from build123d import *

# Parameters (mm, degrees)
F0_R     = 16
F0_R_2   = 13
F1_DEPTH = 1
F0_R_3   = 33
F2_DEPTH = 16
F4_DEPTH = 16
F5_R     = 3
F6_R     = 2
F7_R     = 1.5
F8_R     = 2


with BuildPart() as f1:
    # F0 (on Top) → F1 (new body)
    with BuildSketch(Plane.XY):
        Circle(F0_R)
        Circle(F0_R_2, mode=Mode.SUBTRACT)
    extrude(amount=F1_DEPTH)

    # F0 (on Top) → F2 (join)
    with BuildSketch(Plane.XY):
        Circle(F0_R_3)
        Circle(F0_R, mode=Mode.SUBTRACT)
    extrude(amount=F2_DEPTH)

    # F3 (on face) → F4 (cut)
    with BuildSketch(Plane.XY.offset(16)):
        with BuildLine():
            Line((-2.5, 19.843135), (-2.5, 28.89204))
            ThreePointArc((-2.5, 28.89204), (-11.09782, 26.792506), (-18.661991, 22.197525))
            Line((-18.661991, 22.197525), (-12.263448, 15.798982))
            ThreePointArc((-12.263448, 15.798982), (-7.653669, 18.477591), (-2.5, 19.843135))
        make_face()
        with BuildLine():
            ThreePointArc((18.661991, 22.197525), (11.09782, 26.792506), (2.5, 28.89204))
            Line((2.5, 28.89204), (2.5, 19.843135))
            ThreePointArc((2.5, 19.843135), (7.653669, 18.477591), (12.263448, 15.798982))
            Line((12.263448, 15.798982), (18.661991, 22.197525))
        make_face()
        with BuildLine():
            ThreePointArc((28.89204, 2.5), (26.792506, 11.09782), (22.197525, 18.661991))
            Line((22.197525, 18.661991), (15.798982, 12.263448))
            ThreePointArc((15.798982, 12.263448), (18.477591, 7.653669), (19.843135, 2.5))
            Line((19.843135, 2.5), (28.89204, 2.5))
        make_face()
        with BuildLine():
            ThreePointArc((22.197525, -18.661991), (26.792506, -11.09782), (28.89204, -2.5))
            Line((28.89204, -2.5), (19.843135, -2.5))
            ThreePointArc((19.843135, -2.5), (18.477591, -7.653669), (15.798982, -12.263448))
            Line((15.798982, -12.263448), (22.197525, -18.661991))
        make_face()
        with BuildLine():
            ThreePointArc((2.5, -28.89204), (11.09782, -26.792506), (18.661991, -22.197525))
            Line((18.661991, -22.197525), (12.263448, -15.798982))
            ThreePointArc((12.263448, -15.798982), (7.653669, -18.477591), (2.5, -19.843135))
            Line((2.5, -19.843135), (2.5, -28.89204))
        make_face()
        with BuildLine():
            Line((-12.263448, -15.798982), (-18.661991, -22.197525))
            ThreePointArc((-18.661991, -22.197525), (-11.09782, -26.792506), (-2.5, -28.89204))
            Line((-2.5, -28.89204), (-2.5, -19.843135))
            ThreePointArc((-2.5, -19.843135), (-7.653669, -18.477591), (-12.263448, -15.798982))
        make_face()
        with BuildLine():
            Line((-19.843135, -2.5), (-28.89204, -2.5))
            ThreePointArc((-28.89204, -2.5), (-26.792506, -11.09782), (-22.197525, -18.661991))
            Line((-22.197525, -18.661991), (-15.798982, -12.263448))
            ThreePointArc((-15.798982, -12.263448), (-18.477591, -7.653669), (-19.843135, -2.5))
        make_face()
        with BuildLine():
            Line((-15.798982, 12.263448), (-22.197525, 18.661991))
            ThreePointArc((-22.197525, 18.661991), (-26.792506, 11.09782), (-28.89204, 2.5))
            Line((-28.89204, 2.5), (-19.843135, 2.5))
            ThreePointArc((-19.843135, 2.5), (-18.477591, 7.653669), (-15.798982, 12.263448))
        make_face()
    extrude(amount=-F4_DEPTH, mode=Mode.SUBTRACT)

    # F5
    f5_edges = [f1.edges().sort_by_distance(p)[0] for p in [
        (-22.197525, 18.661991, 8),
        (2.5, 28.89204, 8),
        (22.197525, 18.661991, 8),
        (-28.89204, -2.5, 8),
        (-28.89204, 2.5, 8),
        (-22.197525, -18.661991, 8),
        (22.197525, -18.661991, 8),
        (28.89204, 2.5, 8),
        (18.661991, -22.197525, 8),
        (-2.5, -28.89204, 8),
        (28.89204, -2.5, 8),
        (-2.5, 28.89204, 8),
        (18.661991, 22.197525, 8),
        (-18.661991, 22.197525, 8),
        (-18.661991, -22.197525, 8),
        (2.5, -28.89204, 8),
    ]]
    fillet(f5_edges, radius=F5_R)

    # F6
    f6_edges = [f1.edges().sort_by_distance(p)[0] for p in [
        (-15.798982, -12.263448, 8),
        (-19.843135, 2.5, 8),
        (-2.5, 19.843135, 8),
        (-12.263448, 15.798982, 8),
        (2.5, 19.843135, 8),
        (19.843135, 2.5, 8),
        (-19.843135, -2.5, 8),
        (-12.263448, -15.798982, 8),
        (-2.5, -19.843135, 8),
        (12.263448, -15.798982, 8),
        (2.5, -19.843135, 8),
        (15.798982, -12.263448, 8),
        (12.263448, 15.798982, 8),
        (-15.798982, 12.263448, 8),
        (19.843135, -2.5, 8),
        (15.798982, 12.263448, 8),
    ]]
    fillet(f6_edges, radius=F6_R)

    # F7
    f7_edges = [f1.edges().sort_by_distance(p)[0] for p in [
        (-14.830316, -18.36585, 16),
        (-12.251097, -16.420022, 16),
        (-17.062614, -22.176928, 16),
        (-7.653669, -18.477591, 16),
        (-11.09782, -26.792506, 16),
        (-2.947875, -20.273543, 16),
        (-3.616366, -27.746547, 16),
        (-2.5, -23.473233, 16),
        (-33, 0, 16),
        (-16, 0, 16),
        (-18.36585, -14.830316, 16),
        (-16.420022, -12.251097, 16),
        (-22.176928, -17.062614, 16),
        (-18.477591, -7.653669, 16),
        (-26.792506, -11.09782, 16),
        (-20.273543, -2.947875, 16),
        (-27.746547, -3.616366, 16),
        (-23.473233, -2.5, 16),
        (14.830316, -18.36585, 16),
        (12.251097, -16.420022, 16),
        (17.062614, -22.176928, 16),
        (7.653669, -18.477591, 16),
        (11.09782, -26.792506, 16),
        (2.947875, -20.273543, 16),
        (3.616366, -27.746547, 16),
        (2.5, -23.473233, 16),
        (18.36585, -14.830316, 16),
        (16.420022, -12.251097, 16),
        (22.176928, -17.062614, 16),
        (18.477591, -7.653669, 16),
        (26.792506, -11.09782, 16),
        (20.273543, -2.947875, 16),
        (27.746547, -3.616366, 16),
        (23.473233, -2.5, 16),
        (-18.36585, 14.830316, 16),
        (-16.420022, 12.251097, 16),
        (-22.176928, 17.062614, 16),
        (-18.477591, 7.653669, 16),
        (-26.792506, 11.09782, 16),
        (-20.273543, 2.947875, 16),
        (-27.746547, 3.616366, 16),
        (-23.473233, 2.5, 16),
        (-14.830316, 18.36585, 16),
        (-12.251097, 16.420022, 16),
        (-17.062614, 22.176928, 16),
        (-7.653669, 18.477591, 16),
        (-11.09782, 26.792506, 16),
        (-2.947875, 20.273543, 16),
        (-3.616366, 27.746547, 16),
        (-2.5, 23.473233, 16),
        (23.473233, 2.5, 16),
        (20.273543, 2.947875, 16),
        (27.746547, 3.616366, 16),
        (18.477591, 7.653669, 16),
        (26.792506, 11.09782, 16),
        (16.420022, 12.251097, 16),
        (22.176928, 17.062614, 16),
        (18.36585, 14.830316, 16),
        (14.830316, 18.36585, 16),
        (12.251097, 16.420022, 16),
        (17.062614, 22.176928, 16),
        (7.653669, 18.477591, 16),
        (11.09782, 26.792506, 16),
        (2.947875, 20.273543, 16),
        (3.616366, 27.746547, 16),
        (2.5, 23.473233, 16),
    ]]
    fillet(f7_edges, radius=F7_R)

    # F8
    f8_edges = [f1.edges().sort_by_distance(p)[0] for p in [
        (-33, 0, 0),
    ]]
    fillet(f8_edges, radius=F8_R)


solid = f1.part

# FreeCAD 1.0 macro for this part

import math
import FreeCAD as App
import Part
import Sketcher
Q = App.Units.Quantity


def edges_at(feature, points):
    """Names of the edges that pass closest to the given points."""
    edges = feature.Shape.Edges
    near = lambda p: min(range(len(edges)), key=lambda i: edges[i].distToShape(Part.Vertex(*p))[0])
    return sorted({f"Edge{near(p) + 1}" for p in points})

doc = App.newDocument("Part")
params = doc.addObject("Spreadsheet::Sheet", "Params")
for row, (alias, value) in enumerate([
    ("sketch1_diameter", "32 mm"),
    ("sketch1_diameter2", "26 mm"),
    ("pad1_length", "1 mm"),
    ("sketch2_diameter", "66 mm"),
    ("sketch2_diameter2", "32 mm"),
    ("pad2_length", "16 mm"),
    ("pocket1_length", "16 mm"),
    ("fillet_radius", "3 mm"),
    ("fillet2_radius", "2 mm"),
    ("fillet3_radius", "1.5 mm"),
    ("fillet4_radius", "2 mm"),
], start=1):
    params.set(f"A{row}", alias)
    params.set(f"B{row}", "=" + value)
    params.setAlias(f"B{row}", alias)

body = doc.addObject("PartDesign::Body", "Body")

sketch1 = body.newObject("Sketcher::SketchObject", "Sketch")
sketch1.AttachmentSupport = (doc.getObject("XY_Plane"), [""])
sketch1.MapMode = "FlatFace"
sketch1.addGeometry([
    Part.Circle(App.Vector(0, 0, 0), App.Vector(0, 0, 1), 16),
    Part.Circle(App.Vector(0, 0, 0), App.Vector(0, 0, 1), 13),
], False)
sketch1.addConstraint([
    Sketcher.Constraint("Coincident", 0, 3, -1, 1),
    Sketcher.Constraint("Coincident", 1, 3, -1, 1),
    Sketcher.Constraint("Diameter", 0, Q("32 mm")),
    Sketcher.Constraint("Diameter", 1, Q("26 mm")),
])
sketch1.setExpression("Constraints[2]", "Params.sketch1_diameter")
sketch1.setExpression("Constraints[3]", "Params.sketch1_diameter2")
pad1 = body.newObject("PartDesign::Pad", "Pad")
pad1.Profile = sketch1
pad1.setExpression("Length", "Params.pad1_length")

sketch2 = body.newObject("Sketcher::SketchObject", "Sketch001")
sketch2.AttachmentSupport = (doc.getObject("XY_Plane"), [""])
sketch2.MapMode = "FlatFace"
sketch2.addGeometry([
    Part.Circle(App.Vector(0, 0, 0), App.Vector(0, 0, 1), 33),
    Part.Circle(App.Vector(0, 0, 0), App.Vector(0, 0, 1), 16),
], False)
sketch2.addConstraint([
    Sketcher.Constraint("Coincident", 0, 3, -1, 1),
    Sketcher.Constraint("Coincident", 1, 3, -1, 1),
    Sketcher.Constraint("Diameter", 0, Q("66 mm")),
    Sketcher.Constraint("Diameter", 1, Q("32 mm")),
])
sketch2.setExpression("Constraints[2]", "Params.sketch2_diameter")
sketch2.setExpression("Constraints[3]", "Params.sketch2_diameter2")
pad2 = body.newObject("PartDesign::Pad", "Pad001")
pad2.Profile = sketch2
pad2.setExpression("Length", "Params.pad2_length")

sketch3 = body.newObject("Sketcher::SketchObject", "Sketch002")
sketch3.AttachmentSupport = (doc.getObject("XY_Plane"), [""])
sketch3.MapMode = "FlatFace"
sketch3.AttachmentOffset = App.Placement(App.Vector(0, 0, 16), App.Rotation())
sketch3.addGeometry([
    Part.LineSegment(App.Vector(-2.5, 19.843135, 0), App.Vector(-2.5, 28.89204, 0)),
    Part.ArcOfCircle(Part.Circle(App.Vector(0.000001, -0.000005, 0), App.Vector(0, 0, 1), 29.000005), math.radians(94.94543), math.radians(130.054565)),
    Part.LineSegment(App.Vector(-18.661991, 22.197525, 0), App.Vector(-12.263448, 15.798982, 0)),
    Part.ArcOfCircle(Part.Circle(App.Vector(-0.000005, 0.000014, 0), App.Vector(0, 0, 1), 19.999986), math.radians(97.180747), math.radians(127.819257)),
    Part.ArcOfCircle(Part.Circle(App.Vector(-0.000001, -0.000005, 0), App.Vector(0, 0, 1), 29.000005), math.radians(49.945435), math.radians(85.05457)),
    Part.LineSegment(App.Vector(2.5, 28.89204, 0), App.Vector(2.5, 19.843135, 0)),
    Part.ArcOfCircle(Part.Circle(App.Vector(0.000005, 0.000014, 0), App.Vector(0, 0, 1), 19.999986), math.radians(52.180743), math.radians(82.819253)),
    Part.LineSegment(App.Vector(12.263448, 15.798982, 0), App.Vector(18.661991, 22.197525, 0)),
    Part.ArcOfCircle(Part.Circle(App.Vector(-0.000005, -0.000001, 0), App.Vector(0, 0, 1), 29.000005), math.radians(4.94543), math.radians(40.054565)),
    Part.LineSegment(App.Vector(22.197525, 18.661991, 0), App.Vector(15.798982, 12.263448, 0)),
    Part.ArcOfCircle(Part.Circle(App.Vector(0.000014, 0.000005, 0), App.Vector(0, 0, 1), 19.999986), math.radians(7.180747), math.radians(37.819257)),
    Part.LineSegment(App.Vector(19.843135, 2.5, 0), App.Vector(28.89204, 2.5, 0)),
    Part.ArcOfCircle(Part.Circle(App.Vector(-0.000005, 0.000001, 0), App.Vector(0, 0, 1), 29.000005), math.radians(-40.054565), math.radians(-4.94543)),
    Part.LineSegment(App.Vector(28.89204, -2.5, 0), App.Vector(19.843135, -2.5, 0)),
    Part.ArcOfCircle(Part.Circle(App.Vector(0.000014, -0.000005, 0), App.Vector(0, 0, 1), 19.999986), math.radians(-37.819257), math.radians(-7.180747)),
    Part.LineSegment(App.Vector(15.798982, -12.263448, 0), App.Vector(22.197525, -18.661991, 0)),
    Part.ArcOfCircle(Part.Circle(App.Vector(-0.000001, 0.000005, 0), App.Vector(0, 0, 1), 29.000005), math.radians(-85.05457), math.radians(-49.945435)),
    Part.LineSegment(App.Vector(18.661991, -22.197525, 0), App.Vector(12.263448, -15.798982, 0)),
    Part.ArcOfCircle(Part.Circle(App.Vector(0.000005, -0.000014, 0), App.Vector(0, 0, 1), 19.999986), math.radians(-82.819253), math.radians(-52.180743)),
    Part.LineSegment(App.Vector(2.5, -19.843135, 0), App.Vector(2.5, -28.89204, 0)),
    Part.LineSegment(App.Vector(-12.263448, -15.798982, 0), App.Vector(-18.661991, -22.197525, 0)),
    Part.ArcOfCircle(Part.Circle(App.Vector(0.000001, 0.000005, 0), App.Vector(0, 0, 1), 29.000005), math.radians(-130.054565), math.radians(-94.94543)),
    Part.LineSegment(App.Vector(-2.5, -28.89204, 0), App.Vector(-2.5, -19.843135, 0)),
    Part.ArcOfCircle(Part.Circle(App.Vector(-0.000005, -0.000014, 0), App.Vector(0, 0, 1), 19.999986), math.radians(-127.819257), math.radians(-97.180747)),
    Part.LineSegment(App.Vector(-19.843135, -2.5, 0), App.Vector(-28.89204, -2.5, 0)),
    Part.ArcOfCircle(Part.Circle(App.Vector(0.000005, 0.000001, 0), App.Vector(0, 0, 1), 29.000005), math.radians(-175.05457), math.radians(-139.945435)),
    Part.LineSegment(App.Vector(-22.197525, -18.661991, 0), App.Vector(-15.798982, -12.263448, 0)),
    Part.ArcOfCircle(Part.Circle(App.Vector(-0.000014, -0.000005, 0), App.Vector(0, 0, 1), 19.999986), math.radians(-172.819253), math.radians(-142.180743)),
    Part.LineSegment(App.Vector(-15.798982, 12.263448, 0), App.Vector(-22.197525, 18.661991, 0)),
    Part.ArcOfCircle(Part.Circle(App.Vector(0.000005, -0.000001, 0), App.Vector(0, 0, 1), 29.000005), math.radians(139.945435), math.radians(175.05457)),
    Part.LineSegment(App.Vector(-28.89204, 2.5, 0), App.Vector(-19.843135, 2.5, 0)),
    Part.ArcOfCircle(Part.Circle(App.Vector(-0.000014, 0.000005, 0), App.Vector(0, 0, 1), 19.999986), math.radians(142.180743), math.radians(172.819253)),
], False)
sketch3.addConstraint([
    Sketcher.Constraint("Coincident", 0, 2, 1, 1),
    Sketcher.Constraint("Coincident", 1, 2, 2, 1),
    Sketcher.Constraint("Coincident", 2, 2, 3, 2),
    Sketcher.Constraint("Coincident", 3, 1, 0, 1),
    Sketcher.Constraint("Coincident", 4, 2, 5, 1),
    Sketcher.Constraint("Coincident", 5, 2, 6, 2),
    Sketcher.Constraint("Coincident", 6, 1, 7, 1),
    Sketcher.Constraint("Coincident", 7, 2, 4, 1),
    Sketcher.Constraint("Coincident", 8, 2, 9, 1),
    Sketcher.Constraint("Coincident", 9, 2, 10, 2),
    Sketcher.Constraint("Coincident", 10, 1, 11, 1),
    Sketcher.Constraint("Coincident", 11, 2, 8, 1),
    Sketcher.Constraint("Coincident", 12, 2, 13, 1),
    Sketcher.Constraint("Coincident", 13, 2, 14, 2),
    Sketcher.Constraint("Coincident", 14, 1, 15, 1),
    Sketcher.Constraint("Coincident", 15, 2, 12, 1),
    Sketcher.Constraint("Coincident", 16, 2, 17, 1),
    Sketcher.Constraint("Coincident", 17, 2, 18, 2),
    Sketcher.Constraint("Coincident", 18, 1, 19, 1),
    Sketcher.Constraint("Coincident", 19, 2, 16, 1),
    Sketcher.Constraint("Coincident", 20, 2, 21, 1),
    Sketcher.Constraint("Coincident", 21, 2, 22, 1),
    Sketcher.Constraint("Coincident", 22, 2, 23, 2),
    Sketcher.Constraint("Coincident", 23, 1, 20, 1),
    Sketcher.Constraint("Coincident", 24, 2, 25, 1),
    Sketcher.Constraint("Coincident", 25, 2, 26, 1),
    Sketcher.Constraint("Coincident", 26, 2, 27, 2),
    Sketcher.Constraint("Coincident", 27, 1, 24, 1),
    Sketcher.Constraint("Coincident", 28, 2, 29, 1),
    Sketcher.Constraint("Coincident", 29, 2, 30, 1),
    Sketcher.Constraint("Coincident", 30, 2, 31, 2),
    Sketcher.Constraint("Coincident", 31, 1, 28, 1),
    Sketcher.Constraint("Vertical", 0),
    Sketcher.Constraint("Vertical", 5),
    Sketcher.Constraint("Horizontal", 11),
    Sketcher.Constraint("Horizontal", 13),
    Sketcher.Constraint("Vertical", 19),
    Sketcher.Constraint("Vertical", 22),
    Sketcher.Constraint("Horizontal", 24),
    Sketcher.Constraint("Horizontal", 30),
    Sketcher.Constraint("Coincident", 1, 3, -1, 1),
    Sketcher.Constraint("Coincident", 4, 3, -1, 1),
    Sketcher.Constraint("Coincident", 8, 3, -1, 1),
    Sketcher.Constraint("Coincident", 12, 3, -1, 1),
    Sketcher.Constraint("Coincident", 16, 3, -1, 1),
    Sketcher.Constraint("Coincident", 21, 3, -1, 1),
    Sketcher.Constraint("Coincident", 25, 3, -1, 1),
    Sketcher.Constraint("Coincident", 29, 3, -1, 1),
    Sketcher.Constraint("Coincident", 6, 3, 3, 3),
    Sketcher.Constraint("Coincident", 14, 3, 10, 3),
    Sketcher.Constraint("Coincident", 16, 3, 3, 3),
    Sketcher.Constraint("Coincident", 18, 3, 1, 3),
    Sketcher.Constraint("Coincident", 23, 3, 4, 3),
    Sketcher.Constraint("Coincident", 27, 3, 8, 3),
    Sketcher.Constraint("Coincident", 31, 3, 12, 3),
    Sketcher.Constraint("Equal", 1, 4),
    Sketcher.Constraint("Equal", 3, 6),
    Sketcher.Constraint("Equal", 4, 8),
    Sketcher.Constraint("Equal", 6, 10),
    Sketcher.Constraint("Equal", 8, 12),
    Sketcher.Constraint("Equal", 10, 14),
    Sketcher.Constraint("Equal", 12, 16),
    Sketcher.Constraint("Equal", 14, 18),
    Sketcher.Constraint("Equal", 16, 21),
    Sketcher.Constraint("Equal", 18, 23),
    Sketcher.Constraint("Equal", 21, 25),
    Sketcher.Constraint("Equal", 23, 27),
    Sketcher.Constraint("Equal", 25, 29),
    Sketcher.Constraint("Equal", 27, 31),
    Sketcher.Constraint("Symmetric", 8, 3, 10, 3, -1, 1),
    Sketcher.Constraint("Perpendicular", 2, 7),
    Sketcher.Constraint("Parallel", 7, 9),
    Sketcher.Constraint("Perpendicular", 9, 15),
    Sketcher.Constraint("Parallel", 15, 17),
    Sketcher.Constraint("Perpendicular", 17, 20),
    Sketcher.Constraint("Parallel", 20, 26),
    Sketcher.Constraint("Perpendicular", 26, 28),
    Sketcher.Constraint("Horizontal", 0, 2, 4, 2),
    Sketcher.Constraint("Horizontal", 2, 2, 6, 1),
    Sketcher.Constraint("Horizontal", 1, 2, 7, 2),
    Sketcher.Constraint("Horizontal", 16, 2, 20, 2),
    Sketcher.Constraint("Horizontal", 19, 2, 21, 2),
    Sketcher.Constraint("Horizontal", 13, 2, 24, 2),
    Sketcher.Constraint("Horizontal", 15, 2, 25, 2),
    Sketcher.Constraint("Horizontal", 8, 2, 28, 2),
    Sketcher.Constraint("Horizontal", 11, 2, 29, 2),
    Sketcher.Constraint("Vertical", 11, 2, 12, 2),
    Sketcher.Constraint("Vertical", 9, 2, 14, 1),
    Sketcher.Constraint("Vertical", 7, 2, 16, 2),
    Sketcher.Constraint("Vertical", 5, 2, 18, 1),
    Sketcher.Constraint("Equal", 30, 0),
    Sketcher.Constraint("Equal", 7, 9),
    Sketcher.Constraint("DistanceX", 0, 2, 4, 2, Q("5 mm")),
    Sketcher.Constraint("Radius", 1, Q("29.000005 mm")),
    Sketcher.Constraint("Radius", 3, Q("19.999986 mm")),
    Sketcher.Constraint("DistanceX", 1, 2, -1, 1, Q("18.661991 mm")),
])
pocket1 = body.newObject("PartDesign::Pocket", "Pocket")
pocket1.Profile = sketch3
pocket1.setExpression("Length", "Params.pocket1_length")
doc.recompute()

fillet = body.newObject("PartDesign::Fillet", "Fillet")
fillet.Base = (pocket1, edges_at(pocket1, [
    (-22.198, 18.662, 8),
    (2.5, 28.892, 8),
    (22.198, 18.662, 8),
    (-28.892, -2.5, 8),
    (-28.892, 2.5, 8),
    (-22.198, -18.662, 8),
    (22.198, -18.662, 8),
    (28.892, 2.5, 8),
    (18.662, -22.198, 8),
    (-2.5, -28.892, 8),
    (28.892, -2.5, 8),
    (-2.5, 28.892, 8),
    (18.662, 22.198, 8),
    (-18.662, 22.198, 8),
    (-18.662, -22.198, 8),
    (2.5, -28.892, 8),
]))
fillet.setExpression("Radius", "Params.fillet_radius")
doc.recompute()

fillet2 = body.newObject("PartDesign::Fillet", "Fillet001")
fillet2.Base = (fillet, edges_at(fillet, [
    (-15.799, -12.263, 8),
    (-19.843, 2.5, 8),
    (-2.5, 19.843, 8),
    (-12.263, 15.799, 8),
    (2.5, 19.843, 8),
    (19.843, 2.5, 8),
    (-19.843, -2.5, 8),
    (-12.263, -15.799, 8),
    (-2.5, -19.843, 8),
    (12.263, -15.799, 8),
    (2.5, -19.843, 8),
    (15.799, -12.263, 8),
    (12.263, 15.799, 8),
    (-15.799, 12.263, 8),
    (19.843, -2.5, 8),
    (15.799, 12.263, 8),
]))
fillet2.setExpression("Radius", "Params.fillet2_radius")
doc.recompute()

fillet3 = body.newObject("PartDesign::Fillet", "Fillet002")
fillet3.Base = (fillet2, edges_at(fillet2, [
    (-14.83, -18.366, 16),
    (-12.251, -16.42, 16),
    (-17.063, -22.177, 16),
    (-7.654, -18.478, 16),
    (-11.098, -26.793, 16),
    (-2.948, -20.274, 16),
    (-3.616, -27.747, 16),
    (-2.5, -23.473, 16),
    (-33, 0, 16),
    (-16, 0, 16),
    (-18.366, -14.83, 16),
    (-16.42, -12.251, 16),
    (-22.177, -17.063, 16),
    (-18.478, -7.654, 16),
    (-26.793, -11.098, 16),
    (-20.274, -2.948, 16),
    (-27.747, -3.616, 16),
    (-23.473, -2.5, 16),
    (14.83, -18.366, 16),
    (12.251, -16.42, 16),
    (17.063, -22.177, 16),
    (7.654, -18.478, 16),
    (11.098, -26.793, 16),
    (2.948, -20.274, 16),
    (3.616, -27.747, 16),
    (2.5, -23.473, 16),
    (18.366, -14.83, 16),
    (16.42, -12.251, 16),
    (22.177, -17.063, 16),
    (18.478, -7.654, 16),
    (26.793, -11.098, 16),
    (20.274, -2.948, 16),
    (27.747, -3.616, 16),
    (23.473, -2.5, 16),
    (-18.366, 14.83, 16),
    (-16.42, 12.251, 16),
    (-22.177, 17.063, 16),
    (-18.478, 7.654, 16),
    (-26.793, 11.098, 16),
    (-20.274, 2.948, 16),
    (-27.747, 3.616, 16),
    (-23.473, 2.5, 16),
    (-14.83, 18.366, 16),
    (-12.251, 16.42, 16),
    (-17.063, 22.177, 16),
    (-7.654, 18.478, 16),
    (-11.098, 26.793, 16),
    (-2.948, 20.274, 16),
    (-3.616, 27.747, 16),
    (-2.5, 23.473, 16),
    (23.473, 2.5, 16),
    (20.274, 2.948, 16),
    (27.747, 3.616, 16),
    (18.478, 7.654, 16),
    (26.793, 11.098, 16),
    (16.42, 12.251, 16),
    (22.177, 17.063, 16),
    (18.366, 14.83, 16),
    (14.83, 18.366, 16),
    (12.251, 16.42, 16),
    (17.063, 22.177, 16),
    (7.654, 18.478, 16),
    (11.098, 26.793, 16),
    (2.948, 20.274, 16),
    (3.616, 27.747, 16),
    (2.5, 23.473, 16),
]))
fillet3.setExpression("Radius", "Params.fillet3_radius")
doc.recompute()

fillet4 = body.newObject("PartDesign::Fillet", "Fillet003")
fillet4.Base = (fillet3, edges_at(fillet3, [(-33, 0, 0)]))
fillet4.setExpression("Radius", "Params.fillet4_radius")

doc.recompute()
